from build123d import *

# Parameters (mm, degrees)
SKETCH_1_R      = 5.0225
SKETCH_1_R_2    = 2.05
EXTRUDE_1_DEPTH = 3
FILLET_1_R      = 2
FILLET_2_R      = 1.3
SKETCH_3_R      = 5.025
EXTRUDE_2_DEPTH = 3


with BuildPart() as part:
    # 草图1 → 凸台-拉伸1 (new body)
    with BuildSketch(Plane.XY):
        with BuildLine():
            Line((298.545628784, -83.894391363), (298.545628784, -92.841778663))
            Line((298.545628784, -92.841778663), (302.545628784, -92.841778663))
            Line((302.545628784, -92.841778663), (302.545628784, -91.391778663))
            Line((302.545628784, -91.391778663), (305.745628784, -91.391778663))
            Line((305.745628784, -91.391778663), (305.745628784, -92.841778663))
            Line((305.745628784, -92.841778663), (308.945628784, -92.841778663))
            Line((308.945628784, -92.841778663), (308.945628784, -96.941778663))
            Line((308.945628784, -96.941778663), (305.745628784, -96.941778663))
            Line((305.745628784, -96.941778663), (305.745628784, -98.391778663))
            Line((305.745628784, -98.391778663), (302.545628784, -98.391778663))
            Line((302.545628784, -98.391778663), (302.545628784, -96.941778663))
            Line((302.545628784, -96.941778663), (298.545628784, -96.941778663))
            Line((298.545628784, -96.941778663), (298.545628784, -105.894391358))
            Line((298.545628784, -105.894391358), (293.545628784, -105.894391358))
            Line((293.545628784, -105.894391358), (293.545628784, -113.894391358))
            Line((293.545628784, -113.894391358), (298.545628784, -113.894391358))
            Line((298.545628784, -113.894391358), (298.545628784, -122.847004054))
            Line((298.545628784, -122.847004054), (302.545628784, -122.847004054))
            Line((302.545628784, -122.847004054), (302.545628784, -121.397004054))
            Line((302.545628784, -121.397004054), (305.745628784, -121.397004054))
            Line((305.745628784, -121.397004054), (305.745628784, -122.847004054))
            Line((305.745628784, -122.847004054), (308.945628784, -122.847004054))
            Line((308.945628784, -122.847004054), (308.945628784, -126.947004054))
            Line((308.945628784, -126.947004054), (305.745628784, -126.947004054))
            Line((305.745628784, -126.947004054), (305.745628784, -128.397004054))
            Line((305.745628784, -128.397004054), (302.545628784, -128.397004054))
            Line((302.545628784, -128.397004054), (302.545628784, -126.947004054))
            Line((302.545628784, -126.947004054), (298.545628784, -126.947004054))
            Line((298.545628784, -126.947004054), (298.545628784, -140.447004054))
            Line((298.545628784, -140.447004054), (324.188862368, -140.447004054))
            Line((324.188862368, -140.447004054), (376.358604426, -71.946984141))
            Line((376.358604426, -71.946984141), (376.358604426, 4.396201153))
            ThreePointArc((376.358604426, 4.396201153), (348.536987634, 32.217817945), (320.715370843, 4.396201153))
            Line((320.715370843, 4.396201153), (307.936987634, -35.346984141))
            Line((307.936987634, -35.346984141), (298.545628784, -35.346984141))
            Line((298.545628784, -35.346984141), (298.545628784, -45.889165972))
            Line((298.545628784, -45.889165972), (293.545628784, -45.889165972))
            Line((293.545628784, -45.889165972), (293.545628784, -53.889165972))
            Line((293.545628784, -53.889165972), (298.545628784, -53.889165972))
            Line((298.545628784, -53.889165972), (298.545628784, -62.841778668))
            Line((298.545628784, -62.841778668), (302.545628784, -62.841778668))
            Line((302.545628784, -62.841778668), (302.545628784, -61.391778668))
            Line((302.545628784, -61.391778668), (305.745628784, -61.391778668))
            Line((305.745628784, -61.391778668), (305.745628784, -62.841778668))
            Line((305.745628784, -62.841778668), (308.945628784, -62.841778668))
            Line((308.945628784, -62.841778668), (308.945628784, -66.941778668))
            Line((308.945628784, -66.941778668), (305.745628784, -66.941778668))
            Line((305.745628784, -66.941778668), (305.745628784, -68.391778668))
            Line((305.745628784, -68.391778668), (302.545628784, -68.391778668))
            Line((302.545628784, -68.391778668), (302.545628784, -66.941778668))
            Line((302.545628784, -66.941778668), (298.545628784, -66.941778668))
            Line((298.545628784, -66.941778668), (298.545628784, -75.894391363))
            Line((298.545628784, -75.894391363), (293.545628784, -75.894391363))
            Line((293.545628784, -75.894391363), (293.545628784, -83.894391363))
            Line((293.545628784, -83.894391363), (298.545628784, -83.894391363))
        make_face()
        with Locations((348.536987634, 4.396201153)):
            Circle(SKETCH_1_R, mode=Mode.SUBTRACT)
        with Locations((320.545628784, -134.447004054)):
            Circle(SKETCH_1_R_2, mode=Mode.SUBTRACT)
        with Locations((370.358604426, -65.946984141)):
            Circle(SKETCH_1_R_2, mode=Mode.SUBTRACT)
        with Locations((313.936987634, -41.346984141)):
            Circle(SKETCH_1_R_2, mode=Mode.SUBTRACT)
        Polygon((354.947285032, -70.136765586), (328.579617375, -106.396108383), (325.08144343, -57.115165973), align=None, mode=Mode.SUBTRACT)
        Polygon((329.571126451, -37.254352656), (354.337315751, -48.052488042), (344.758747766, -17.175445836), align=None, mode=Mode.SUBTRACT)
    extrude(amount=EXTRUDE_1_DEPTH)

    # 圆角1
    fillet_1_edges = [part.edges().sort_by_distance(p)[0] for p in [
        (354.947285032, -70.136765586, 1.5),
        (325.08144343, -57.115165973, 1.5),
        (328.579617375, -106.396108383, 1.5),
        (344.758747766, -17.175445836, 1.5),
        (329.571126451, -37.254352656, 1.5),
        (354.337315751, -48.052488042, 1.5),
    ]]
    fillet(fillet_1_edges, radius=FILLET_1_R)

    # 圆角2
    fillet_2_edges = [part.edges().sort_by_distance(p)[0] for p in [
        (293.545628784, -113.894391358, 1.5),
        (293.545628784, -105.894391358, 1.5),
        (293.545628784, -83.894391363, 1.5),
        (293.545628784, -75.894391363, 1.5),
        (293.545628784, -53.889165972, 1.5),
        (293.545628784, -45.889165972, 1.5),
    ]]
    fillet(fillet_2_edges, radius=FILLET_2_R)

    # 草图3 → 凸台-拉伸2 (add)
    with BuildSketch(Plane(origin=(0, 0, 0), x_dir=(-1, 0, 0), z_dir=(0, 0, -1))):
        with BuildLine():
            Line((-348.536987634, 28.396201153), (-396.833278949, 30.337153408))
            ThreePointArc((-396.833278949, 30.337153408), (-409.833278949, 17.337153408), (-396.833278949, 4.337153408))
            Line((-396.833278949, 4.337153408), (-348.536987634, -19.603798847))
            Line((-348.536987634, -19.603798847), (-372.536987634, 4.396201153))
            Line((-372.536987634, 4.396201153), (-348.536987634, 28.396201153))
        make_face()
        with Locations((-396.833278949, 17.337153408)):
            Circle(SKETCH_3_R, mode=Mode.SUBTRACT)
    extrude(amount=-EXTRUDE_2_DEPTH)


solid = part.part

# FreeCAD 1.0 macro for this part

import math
import FreeCAD as App
import Part
import Sketcher

V = App.Vector


def edges_at(feature, points):
    """Names of the edges that pass closest to the given points."""
    edges = feature.Shape.Edges
    near = lambda p: min(range(len(edges)), key=lambda i: edges[i].distToShape(Part.Vertex(*p))[0])
    return sorted({f"Edge{near(p) + 1}" for p in points})


def add_polygon(sketch, points):
    """Adds a closed chain of lines whose ends are joined by coincident constraints."""
    first, n = sketch.GeometryCount, len(points)
    for a, b in zip(points, points[1:] + points[:1]):
        sketch.addGeometry(Part.LineSegment(App.Vector(*a, 0), App.Vector(*b, 0)), False)
    for i in range(n):
        sketch.addConstraint(Sketcher.Constraint("Coincident", first + i, 2, first + (i + 1) % n, 1))

doc = App.newDocument("Part")
body = doc.addObject("PartDesign::Body", "Body")

# Sketch on XY plane
sketch1 = doc.addObject("Sketcher::SketchObject", "Sketch")
body.addObject(sketch1)
sketch1.AttachmentSupport = (doc.XY_Plane, [""])
sketch1.MapMode = "FlatFace"
sketch1.addGeometry(Part.LineSegment(V(298.545629, -83.894391, 0), V(298.545629, -92.841779, 0)), False)  # 0
sketch1.addGeometry(Part.LineSegment(V(298.545629, -92.841779, 0), V(302.545629, -92.841779, 0)), False)  # 1
sketch1.addGeometry(Part.LineSegment(V(302.545629, -92.841779, 0), V(302.545629, -91.391779, 0)), False)  # 2
sketch1.addGeometry(Part.LineSegment(V(302.545629, -91.391779, 0), V(305.745629, -91.391779, 0)), False)  # 3
sketch1.addGeometry(Part.LineSegment(V(305.745629, -91.391779, 0), V(305.745629, -92.841779, 0)), False)  # 4
sketch1.addGeometry(Part.LineSegment(V(305.745629, -92.841779, 0), V(308.945629, -92.841779, 0)), False)  # 5
sketch1.addGeometry(Part.LineSegment(V(308.945629, -92.841779, 0), V(308.945629, -96.941779, 0)), False)  # 6
sketch1.addGeometry(Part.LineSegment(V(308.945629, -96.941779, 0), V(305.745629, -96.941779, 0)), False)  # 7
sketch1.addGeometry(Part.LineSegment(V(305.745629, -96.941779, 0), V(305.745629, -98.391779, 0)), False)  # 8
sketch1.addGeometry(Part.LineSegment(V(305.745629, -98.391779, 0), V(302.545629, -98.391779, 0)), False)  # 9
sketch1.addGeometry(Part.LineSegment(V(302.545629, -98.391779, 0), V(302.545629, -96.941779, 0)), False)  # 10
sketch1.addGeometry(Part.LineSegment(V(302.545629, -96.941779, 0), V(298.545629, -96.941779, 0)), False)  # 11
sketch1.addGeometry(Part.LineSegment(V(298.545629, -96.941779, 0), V(298.545629, -105.894391, 0)), False)  # 12
sketch1.addGeometry(Part.LineSegment(V(298.545629, -105.894391, 0), V(293.545629, -105.894391, 0)), False)  # 13
sketch1.addGeometry(Part.LineSegment(V(293.545629, -105.894391, 0), V(293.545629, -113.894391, 0)), False)  # 14
sketch1.addGeometry(Part.LineSegment(V(293.545629, -113.894391, 0), V(298.545629, -113.894391, 0)), False)  # 15
sketch1.addGeometry(Part.LineSegment(V(298.545629, -113.894391, 0), V(298.545629, -122.847004, 0)), False)  # 16
sketch1.addGeometry(Part.LineSegment(V(298.545629, -122.847004, 0), V(302.545629, -122.847004, 0)), False)  # 17
sketch1.addGeometry(Part.LineSegment(V(302.545629, -122.847004, 0), V(302.545629, -121.397004, 0)), False)  # 18
sketch1.addGeometry(Part.LineSegment(V(302.545629, -121.397004, 0), V(305.745629, -121.397004, 0)), False)  # 19
sketch1.addGeometry(Part.LineSegment(V(305.745629, -121.397004, 0), V(305.745629, -122.847004, 0)), False)  # 20
sketch1.addGeometry(Part.LineSegment(V(305.745629, -122.847004, 0), V(308.945629, -122.847004, 0)), False)  # 21
sketch1.addGeometry(Part.LineSegment(V(308.945629, -122.847004, 0), V(308.945629, -126.947004, 0)), False)  # 22
sketch1.addGeometry(Part.LineSegment(V(308.945629, -126.947004, 0), V(305.745629, -126.947004, 0)), False)  # 23
sketch1.addGeometry(Part.LineSegment(V(305.745629, -126.947004, 0), V(305.745629, -128.397004, 0)), False)  # 24
sketch1.addGeometry(Part.LineSegment(V(305.745629, -128.397004, 0), V(302.545629, -128.397004, 0)), False)  # 25
sketch1.addGeometry(Part.LineSegment(V(302.545629, -128.397004, 0), V(302.545629, -126.947004, 0)), False)  # 26
sketch1.addGeometry(Part.LineSegment(V(302.545629, -126.947004, 0), V(298.545629, -126.947004, 0)), False)  # 27
sketch1.addGeometry(Part.LineSegment(V(298.545629, -126.947004, 0), V(298.545629, -140.447004, 0)), False)  # 28
sketch1.addGeometry(Part.LineSegment(V(298.545629, -140.447004, 0), V(324.188862, -140.447004, 0)), False)  # 29
sketch1.addGeometry(Part.LineSegment(V(324.188862, -140.447004, 0), V(376.358604, -71.946984, 0)), False)  # 30
sketch1.addGeometry(Part.LineSegment(V(376.358604, -71.946984, 0), V(376.358604, 4.396201, 0)), False)  # 31
sketch1.addGeometry(Part.ArcOfCircle(Part.Circle(V(348.536988, 4.396201, 0), V(0, 0, 1), 27.821617), math.radians(0), math.radians(180)), False)  # 32
sketch1.addGeometry(Part.LineSegment(V(320.715371, 4.396201, 0), V(307.936988, -35.346984, 0)), False)  # 33
sketch1.addGeometry(Part.LineSegment(V(307.936988, -35.346984, 0), V(298.545629, -35.346984, 0)), False)  # 34
sketch1.addGeometry(Part.LineSegment(V(298.545629, -35.346984, 0), V(298.545629, -45.889166, 0)), False)  # 35
sketch1.addGeometry(Part.LineSegment(V(298.545629, -45.889166, 0), V(293.545629, -45.889166, 0)), False)  # 36
sketch1.addGeometry(Part.LineSegment(V(293.545629, -45.889166, 0), V(293.545629, -53.889166, 0)), False)  # 37
sketch1.addGeometry(Part.LineSegment(V(293.545629, -53.889166, 0), V(298.545629, -53.889166, 0)), False)  # 38
sketch1.addGeometry(Part.LineSegment(V(298.545629, -53.889166, 0), V(298.545629, -62.841779, 0)), False)  # 39
sketch1.addGeometry(Part.LineSegment(V(298.545629, -62.841779, 0), V(302.545629, -62.841779, 0)), False)  # 40
sketch1.addGeometry(Part.LineSegment(V(302.545629, -62.841779, 0), V(302.545629, -61.391779, 0)), False)  # 41
sketch1.addGeometry(Part.LineSegment(V(302.545629, -61.391779, 0), V(305.745629, -61.391779, 0)), False)  # 42
sketch1.addGeometry(Part.LineSegment(V(305.745629, -61.391779, 0), V(305.745629, -62.841779, 0)), False)  # 43
sketch1.addGeometry(Part.LineSegment(V(305.745629, -62.841779, 0), V(308.945629, -62.841779, 0)), False)  # 44
sketch1.addGeometry(Part.LineSegment(V(308.945629, -62.841779, 0), V(308.945629, -66.941779, 0)), False)  # 45
sketch1.addGeometry(Part.LineSegment(V(308.945629, -66.941779, 0), V(305.745629, -66.941779, 0)), False)  # 46
sketch1.addGeometry(Part.LineSegment(V(305.745629, -66.941779, 0), V(305.745629, -68.391779, 0)), False)  # 47
sketch1.addGeometry(Part.LineSegment(V(305.745629, -68.391779, 0), V(302.545629, -68.391779, 0)), False)  # 48
sketch1.addGeometry(Part.LineSegment(V(302.545629, -68.391779, 0), V(302.545629, -66.941779, 0)), False)  # 49
sketch1.addGeometry(Part.LineSegment(V(302.545629, -66.941779, 0), V(298.545629, -66.941779, 0)), False)  # 50
sketch1.addGeometry(Part.LineSegment(V(298.545629, -66.941779, 0), V(298.545629, -75.894391, 0)), False)  # 51
sketch1.addGeometry(Part.LineSegment(V(298.545629, -75.894391, 0), V(293.545629, -75.894391, 0)), False)  # 52
sketch1.addGeometry(Part.LineSegment(V(293.545629, -75.894391, 0), V(293.545629, -83.894391, 0)), False)  # 53
sketch1.addGeometry(Part.LineSegment(V(293.545629, -83.894391, 0), V(298.545629, -83.894391, 0)), False)  # 54
sketch1.addGeometry(Part.Circle(V(320.545629, -134.447004, 0), V(0, 0, 1), 2.05), False)  # 55
add_polygon(sketch1, [(325.081443, -57.115166), (354.947285, -70.136766), (328.579617, -106.396108)])  # lines 56-58
sketch1.addGeometry(Part.Circle(V(370.358604, -65.946984, 0), V(0, 0, 1), 2.05), False)  # 59
sketch1.addGeometry(Part.Circle(V(313.936988, -41.346984, 0), V(0, 0, 1), 2.05), False)  # 60
add_polygon(sketch1, [(354.337316, -48.052488), (329.571126, -37.254353), (344.758748, -17.175446)])  # lines 61-63
sketch1.addGeometry(Part.Circle(V(348.536988, 4.396201, 0), V(0, 0, 1), 5.0225), False)  # 64
sketch1.addConstraint(Sketcher.Constraint("Coincident", 0, 2, 1, 1))
sketch1.addConstraint(Sketcher.Constraint("Coincident", 1, 2, 2, 1))
sketch1.addConstraint(Sketcher.Constraint("Coincident", 2, 2, 3, 1))
sketch1.addConstraint(Sketcher.Constraint("Coincident", 3, 2, 4, 1))
sketch1.addConstraint(Sketcher.Constraint("Coincident", 4, 2, 5, 1))
sketch1.addConstraint(Sketcher.Constraint("Coincident", 5, 2, 6, 1))
sketch1.addConstraint(Sketcher.Constraint("Coincident", 6, 2, 7, 1))
sketch1.addConstraint(Sketcher.Constraint("Coincident", 7, 2, 8, 1))
sketch1.addConstraint(Sketcher.Constraint("Coincident", 8, 2, 9, 1))
sketch1.addConstraint(Sketcher.Constraint("Coincident", 9, 2, 10, 1))
sketch1.addConstraint(Sketcher.Constraint("Coincident", 10, 2, 11, 1))
sketch1.addConstraint(Sketcher.Constraint("Coincident", 11, 2, 12, 1))
sketch1.addConstraint(Sketcher.Constraint("Coincident", 12, 2, 13, 1))
sketch1.addConstraint(Sketcher.Constraint("Coincident", 13, 2, 14, 1))
sketch1.addConstraint(Sketcher.Constraint("Coincident", 14, 2, 15, 1))
sketch1.addConstraint(Sketcher.Constraint("Coincident", 15, 2, 16, 1))
sketch1.addConstraint(Sketcher.Constraint("Coincident", 16, 2, 17, 1))
sketch1.addConstraint(Sketcher.Constraint("Coincident", 17, 2, 18, 1))
sketch1.addConstraint(Sketcher.Constraint("Coincident", 18, 2, 19, 1))
sketch1.addConstraint(Sketcher.Constraint("Coincident", 19, 2, 20, 1))
sketch1.addConstraint(Sketcher.Constraint("Coincident", 20, 2, 21, 1))
sketch1.addConstraint(Sketcher.Constraint("Coincident", 21, 2, 22, 1))
sketch1.addConstraint(Sketcher.Constraint("Coincident", 22, 2, 23, 1))
sketch1.addConstraint(Sketcher.Constraint("Coincident", 23, 2, 24, 1))
sketch1.addConstraint(Sketcher.Constraint("Coincident", 24, 2, 25, 1))
sketch1.addConstraint(Sketcher.Constraint("Coincident", 25, 2, 26, 1))
sketch1.addConstraint(Sketcher.Constraint("Coincident", 26, 2, 27, 1))
sketch1.addConstraint(Sketcher.Constraint("Coincident", 27, 2, 28, 1))
sketch1.addConstraint(Sketcher.Constraint("Coincident", 28, 2, 29, 1))
sketch1.addConstraint(Sketcher.Constraint("Coincident", 29, 2, 30, 1))
sketch1.addConstraint(Sketcher.Constraint("Coincident", 30, 2, 31, 1))
sketch1.addConstraint(Sketcher.Constraint("Tangent", 31, 2, 32, 1))
sketch1.addConstraint(Sketcher.Constraint("Coincident", 32, 2, 33, 1))
sketch1.addConstraint(Sketcher.Constraint("Coincident", 33, 2, 34, 1))
sketch1.addConstraint(Sketcher.Constraint("Coincident", 34, 2, 35, 1))
sketch1.addConstraint(Sketcher.Constraint("Coincident", 35, 2, 36, 1))
sketch1.addConstraint(Sketcher.Constraint("Coincident", 36, 2, 37, 1))
sketch1.addConstraint(Sketcher.Constraint("Coincident", 37, 2, 38, 1))
sketch1.addConstraint(Sketcher.Constraint("Coincident", 38, 2, 39, 1))
sketch1.addConstraint(Sketcher.Constraint("Coincident", 39, 2, 40, 1))
sketch1.addConstraint(Sketcher.Constraint("Coincident", 40, 2, 41, 1))
sketch1.addConstraint(Sketcher.Constraint("Coincident", 41, 2, 42, 1))
sketch1.addConstraint(Sketcher.Constraint("Coincident", 42, 2, 43, 1))
sketch1.addConstraint(Sketcher.Constraint("Coincident", 43, 2, 44, 1))
sketch1.addConstraint(Sketcher.Constraint("Coincident", 44, 2, 45, 1))
sketch1.addConstraint(Sketcher.Constraint("Coincident", 45, 2, 46, 1))
sketch1.addConstraint(Sketcher.Constraint("Coincident", 46, 2, 47, 1))
sketch1.addConstraint(Sketcher.Constraint("Coincident", 47, 2, 48, 1))
sketch1.addConstraint(Sketcher.Constraint("Coincident", 48, 2, 49, 1))
sketch1.addConstraint(Sketcher.Constraint("Coincident", 49, 2, 50, 1))
sketch1.addConstraint(Sketcher.Constraint("Coincident", 50, 2, 51, 1))
sketch1.addConstraint(Sketcher.Constraint("Coincident", 51, 2, 52, 1))
sketch1.addConstraint(Sketcher.Constraint("Coincident", 52, 2, 53, 1))
sketch1.addConstraint(Sketcher.Constraint("Coincident", 53, 2, 54, 1))
sketch1.addConstraint(Sketcher.Constraint("Coincident", 54, 2, 0, 1))
sketch1.addConstraint(Sketcher.Constraint("Vertical", 0))
sketch1.addConstraint(Sketcher.Constraint("Horizontal", 1))
sketch1.addConstraint(Sketcher.Constraint("Vertical", 2))
sketch1.addConstraint(Sketcher.Constraint("Horizontal", 3))
sketch1.addConstraint(Sketcher.Constraint("Vertical", 4))
sketch1.addConstraint(Sketcher.Constraint("Horizontal", 5))
sketch1.addConstraint(Sketcher.Constraint("Vertical", 6))
sketch1.addConstraint(Sketcher.Constraint("Horizontal", 7))
sketch1.addConstraint(Sketcher.Constraint("Vertical", 8))
sketch1.addConstraint(Sketcher.Constraint("Horizontal", 9))
sketch1.addConstraint(Sketcher.Constraint("Vertical", 10))
sketch1.addConstraint(Sketcher.Constraint("Horizontal", 11))
sketch1.addConstraint(Sketcher.Constraint("Vertical", 12))
sketch1.addConstraint(Sketcher.Constraint("Horizontal", 13))
sketch1.addConstraint(Sketcher.Constraint("Vertical", 14))
sketch1.addConstraint(Sketcher.Constraint("Horizontal", 15))
sketch1.addConstraint(Sketcher.Constraint("Vertical", 16))
sketch1.addConstraint(Sketcher.Constraint("Horizontal", 17))
sketch1.addConstraint(Sketcher.Constraint("Vertical", 18))
sketch1.addConstraint(Sketcher.Constraint("Horizontal", 19))
sketch1.addConstraint(Sketcher.Constraint("Vertical", 20))
sketch1.addConstraint(Sketcher.Constraint("Horizontal", 21))
sketch1.addConstraint(Sketcher.Constraint("Vertical", 22))
sketch1.addConstraint(Sketcher.Constraint("Horizontal", 23))
sketch1.addConstraint(Sketcher.Constraint("Vertical", 24))
sketch1.addConstraint(Sketcher.Constraint("Horizontal", 25))
sketch1.addConstraint(Sketcher.Constraint("Vertical", 26))
sketch1.addConstraint(Sketcher.Constraint("Horizontal", 27))
sketch1.addConstraint(Sketcher.Constraint("Vertical", 28))
sketch1.addConstraint(Sketcher.Constraint("Horizontal", 29))
sketch1.addConstraint(Sketcher.Constraint("Vertical", 31))
sketch1.addConstraint(Sketcher.Constraint("Horizontal", 34))
sketch1.addConstraint(Sketcher.Constraint("Vertical", 35))
sketch1.addConstraint(Sketcher.Constraint("Horizontal", 36))
sketch1.addConstraint(Sketcher.Constraint("Vertical", 37))
sketch1.addConstraint(Sketcher.Constraint("Horizontal", 38))
sketch1.addConstraint(Sketcher.Constraint("Vertical", 39))
sketch1.addConstraint(Sketcher.Constraint("Horizontal", 40))
sketch1.addConstraint(Sketcher.Constraint("Vertical", 41))
sketch1.addConstraint(Sketcher.Constraint("Horizontal", 42))
sketch1.addConstraint(Sketcher.Constraint("Vertical", 43))
sketch1.addConstraint(Sketcher.Constraint("Horizontal", 44))
sketch1.addConstraint(Sketcher.Constraint("Vertical", 45))
sketch1.addConstraint(Sketcher.Constraint("Horizontal", 46))
sketch1.addConstraint(Sketcher.Constraint("Vertical", 47))
sketch1.addConstraint(Sketcher.Constraint("Horizontal", 48))
sketch1.addConstraint(Sketcher.Constraint("Vertical", 49))
sketch1.addConstraint(Sketcher.Constraint("Horizontal", 50))
sketch1.addConstraint(Sketcher.Constraint("Vertical", 51))
sketch1.addConstraint(Sketcher.Constraint("Horizontal", 52))
sketch1.addConstraint(Sketcher.Constraint("Vertical", 53))
sketch1.addConstraint(Sketcher.Constraint("Horizontal", 54))
sketch1.addConstraint(Sketcher.Constraint("Coincident", 64, 3, 32, 3))
sketch1.addConstraint(Sketcher.Constraint("Equal", 55, 59))
sketch1.addConstraint(Sketcher.Constraint("Equal", 59, 60))
sketch1.addConstraint(Sketcher.Constraint("Parallel", 56, 61))
sketch1.addConstraint(Sketcher.Constraint("Horizontal", 1, 2, 4, 2))
sketch1.addConstraint(Sketcher.Constraint("Horizontal", 7, 2, 10, 2))
sketch1.addConstraint(Sketcher.Constraint("Horizontal", 17, 2, 20, 2))
sketch1.addConstraint(Sketcher.Constraint("Horizontal", 23, 2, 26, 2))
sketch1.addConstraint(Sketcher.Constraint("Horizontal", 31, 2, 32, 2))
sketch1.addConstraint(Sketcher.Constraint("Horizontal", 40, 2, 43, 2))
sketch1.addConstraint(Sketcher.Constraint("Horizontal", 46, 2, 49, 2))
sketch1.addConstraint(Sketcher.Constraint("Vertical", 4, 2, 7, 2))
sketch1.addConstraint(Sketcher.Constraint("Vertical", 2, 2, 9, 2))
sketch1.addConstraint(Sketcher.Constraint("Vertical", 0, 2, 11, 2))
sketch1.addConstraint(Sketcher.Constraint("Vertical", 12, 2, 15, 2))
sketch1.addConstraint(Sketcher.Constraint("Vertical", 10, 2, 17, 2))
sketch1.addConstraint(Sketcher.Constraint("Vertical", 8, 2, 19, 2))
sketch1.addConstraint(Sketcher.Constraint("Vertical", 6, 2, 21, 2))
sketch1.addConstraint(Sketcher.Constraint("Vertical", 20, 2, 23, 2))
sketch1.addConstraint(Sketcher.Constraint("Vertical", 18, 2, 25, 2))
sketch1.addConstraint(Sketcher.Constraint("Vertical", 16, 2, 27, 2))
sketch1.addConstraint(Sketcher.Constraint("Vertical", 28, 2, 34, 2))
sketch1.addConstraint(Sketcher.Constraint("Vertical", 14, 2, 36, 2))
sketch1.addConstraint(Sketcher.Constraint("Vertical", 35, 2, 38, 2))
sketch1.addConstraint(Sketcher.Constraint("Vertical", 26, 2, 40, 2))
sketch1.addConstraint(Sketcher.Constraint("Vertical", 24, 2, 42, 2))
sketch1.addConstraint(Sketcher.Constraint("Vertical", 22, 2, 44, 2))
sketch1.addConstraint(Sketcher.Constraint("Vertical", 43, 2, 46, 2))
sketch1.addConstraint(Sketcher.Constraint("Vertical", 41, 2, 48, 2))
sketch1.addConstraint(Sketcher.Constraint("Vertical", 39, 2, 50, 2))
sketch1.addConstraint(Sketcher.Constraint("Vertical", 37, 2, 52, 2))
sketch1.addConstraint(Sketcher.Constraint("Equal", 3, 5))
sketch1.addConstraint(Sketcher.Constraint("Equal", 4, 8))
sketch1.addConstraint(Sketcher.Constraint("Equal", 12, 16))
sketch1.addConstraint(Sketcher.Constraint("Equal", 10, 18))
sketch1.addConstraint(Sketcher.Constraint("Equal", 6, 22))
sketch1.addConstraint(Sketcher.Constraint("Equal", 20, 24))
sketch1.addConstraint(Sketcher.Constraint("Equal", 14, 37))
sketch1.addConstraint(Sketcher.Constraint("Equal", 16, 39))
sketch1.addConstraint(Sketcher.Constraint("Equal", 26, 41))
sketch1.addConstraint(Sketcher.Constraint("Equal", 22, 45))
sketch1.addConstraint(Sketcher.Constraint("Equal", 43, 47))
sketch1.addConstraint(Sketcher.Constraint("Equal", 39, 51))
sketch1.addConstraint(Sketcher.Constraint("Equal", 37, 53))
sketch1.addConstraint(Sketcher.Constraint("Diameter", 55, 4.1))
sketch1.addConstraint(Sketcher.Constraint("DistanceX", 1, 1, 1, 2, 4.0))
sketch1.addConstraint(Sketcher.Constraint("DistanceX", 13, 2, 13, 1, 5.0))
sketch1.addConstraint(Sketcher.Constraint("DistanceY", 14, 2, 14, 1, 8.0))
sketch1.addConstraint(Sketcher.Constraint("Diameter", 64, 10.045))
sketch1.addConstraint(Sketcher.Constraint("DistanceX", 3, 1, 3, 2, 3.2))
sketch1.addConstraint(Sketcher.Constraint("DistanceY", 6, 2, 6, 1, 4.1))
sketch1.addConstraint(Sketcher.Constraint("DistanceY", 28, 2, 28, 1, 13.5))
sketch1.addConstraint(Sketcher.Constraint("DistanceY", 2, 1, 2, 2, 1.45))
sketch1.addConstraint(Sketcher.Constraint("Radius", 32, 27.821617))
sketch1.addConstraint(Sketcher.Constraint("DistanceX", 34, 2, 34, 1, 9.391359))
sketch1.addConstraint(Sketcher.Constraint("DistanceY", 35, 2, 35, 1, 10.542182))
sketch1.addConstraint(Sketcher.Constraint("DistanceY", -1, 1, 32, 3, 4.396201))
sketch1.addConstraint(Sketcher.Constraint("Distance", 30, 86.104208))
sketch1.addConstraint(Sketcher.Constraint("Distance", 33, 41.74695))
sketch1.addConstraint(Sketcher.Constraint("DistanceX", 29, 1, 29, 2, 25.643234))
sketch1.addConstraint(Sketcher.Constraint("DistanceY", 0, 2, 0, 1, 8.947387))
sketch1.addConstraint(Sketcher.Constraint("DistanceY", 12, 2, 12, 1, 8.952613))
sketch1.addConstraint(Sketcher.Constraint("DistanceY", 31, 1, 31, 2, 76.343185))
sketch1.addConstraint(Sketcher.Constraint("DistanceX", -1, 1, 55, 3, 320.545629))
sketch1.addConstraint(Sketcher.Constraint("DistanceX", -1, 1, 0, 2, 298.545629))
sketch1.addConstraint(Sketcher.Constraint("DistanceY", 57, 2, -1, 1, 106.396108))
sketch1.addConstraint(Sketcher.Constraint("DistanceY", 63, 2, -1, 1, 48.052488))
sketch1.addConstraint(Sketcher.Constraint("Distance", 56, 32.581138))
sketch1.addConstraint(Sketcher.Constraint("Distance", 57, 44.832955))
sketch1.addConstraint(Sketcher.Constraint("Distance", 58, 49.404944))
sketch1.addConstraint(Sketcher.Constraint("Distance", 61, 27.017843))
sketch1.addConstraint(Sketcher.Constraint("Distance", 62, 25.175908))
sketch1.addConstraint(Sketcher.Constraint("Distance", 63, 32.328636))
sketch1.addConstraint(Sketcher.Constraint("DistanceY", 55, 3, -1, 1, 134.447004))
sketch1.addConstraint(Sketcher.Constraint("DistanceX", -1, 1, 59, 3, 370.358604))
sketch1.addConstraint(Sketcher.Constraint("DistanceY", 59, 3, -1, 1, 65.946984))
sketch1.addConstraint(Sketcher.Constraint("DistanceX", -1, 1, 60, 3, 313.936988))
sketch1.addConstraint(Sketcher.Constraint("DistanceY", 60, 3, -1, 1, 41.346984))
sketch1.addConstraint(Sketcher.Constraint("DistanceX", -1, 1, 56, 2, 354.947285))
sketch1.addConstraint(Sketcher.Constraint("DistanceY", 56, 2, -1, 1, 70.136766))
sketch1.addConstraint(Sketcher.Constraint("DistanceX", -1, 1, 61, 2, 329.571126))
pad1 = doc.addObject("PartDesign::Pad", "Pad")
body.addObject(pad1)
pad1.Profile = sketch1
pad1.Length = 3
doc.recompute()

fillet = doc.addObject("PartDesign::Fillet", "Fillet")
body.addObject(fillet)
fillet.Base = (pad1, edges_at(pad1, [
    (354.947, -70.137, 1.5),
    (325.081, -57.115, 1.5),
    (328.58, -106.396, 1.5),
    (344.759, -17.175, 1.5),
    (329.571, -37.254, 1.5),
    (354.337, -48.052, 1.5),
]))
fillet.Radius = 2
doc.recompute()

fillet2 = doc.addObject("PartDesign::Fillet", "Fillet001")
body.addObject(fillet2)
fillet2.Base = (fillet, edges_at(fillet, [
    (293.546, -113.894, 1.5),
    (293.546, -105.894, 1.5),
    (293.546, -83.894, 1.5),
    (293.546, -75.894, 1.5),
    (293.546, -53.889, 1.5),
    (293.546, -45.889, 1.5),
]))
fillet2.Radius = 1.3

# Sketch on XY plane
sketch2 = doc.addObject("Sketcher::SketchObject", "Sketch001")
body.addObject(sketch2)
sketch2.AttachmentSupport = (doc.XY_Plane, [""])
sketch2.MapMode = "FlatFace"
sketch2.addGeometry(Part.LineSegment(V(348.536988, 28.396201, 0), V(396.833279, 30.337153, 0)), False)
sketch2.addGeometry(Part.ArcOfCircle(Part.Circle(V(396.833279, 17.337153, 0), V(0, 0, 1), 13), math.radians(-90), math.radians(90)), False)
sketch2.addGeometry(Part.LineSegment(V(396.833279, 4.337153, 0), V(348.536988, -19.603799, 0)), False)
sketch2.addGeometry(Part.LineSegment(V(348.536988, -19.603799, 0), V(372.536988, 4.396201, 0)), False)
sketch2.addGeometry(Part.LineSegment(V(372.536988, 4.396201, 0), V(348.536988, 28.396201, 0)), False)
sketch2.addGeometry(Part.Circle(V(396.833279, 17.337153, 0), V(0, 0, 1), 5.025), False)
sketch2.addConstraint(Sketcher.Constraint("Coincident", 0, 2, 1, 2))
sketch2.addConstraint(Sketcher.Constraint("Coincident", 1, 1, 2, 1))
sketch2.addConstraint(Sketcher.Constraint("Coincident", 2, 2, 3, 1))
sketch2.addConstraint(Sketcher.Constraint("Coincident", 3, 2, 4, 1))
sketch2.addConstraint(Sketcher.Constraint("Coincident", 4, 2, 0, 1))
sketch2.addConstraint(Sketcher.Constraint("Coincident", 5, 3, 1, 3))
sketch2.addConstraint(Sketcher.Constraint("Perpendicular", 3, 4))
sketch2.addConstraint(Sketcher.Constraint("Vertical", 5, 3, 0, 2))
sketch2.addConstraint(Sketcher.Constraint("Vertical", 0, 2, 1, 1))
sketch2.addConstraint(Sketcher.Constraint("Vertical", 2, 2, 4, 2))
sketch2.addConstraint(Sketcher.Constraint("Equal", 3, 4))
sketch2.addConstraint(Sketcher.Constraint("Radius", 1, 13.0))
sketch2.addConstraint(Sketcher.Constraint("Diameter", 5, 10.05))
sketch2.addConstraint(Sketcher.Constraint("DistanceX", 2, 2, 3, 2, 24.0))
sketch2.addConstraint(Sketcher.Constraint("DistanceY", 2, 2, -1, 1, 19.603799))
sketch2.addConstraint(Sketcher.Constraint("DistanceX", -1, 1, 1, 3, 396.833279))
sketch2.addConstraint(Sketcher.Constraint("DistanceX", 2, 2, 1, 1, 48.296291))
sketch2.addConstraint(Sketcher.Constraint("Distance", 0, 48.335277))
pad2 = doc.addObject("PartDesign::Pad", "Pad001")
body.addObject(pad2)
pad2.Profile = sketch2
pad2.Length = 3

doc.recompute()
